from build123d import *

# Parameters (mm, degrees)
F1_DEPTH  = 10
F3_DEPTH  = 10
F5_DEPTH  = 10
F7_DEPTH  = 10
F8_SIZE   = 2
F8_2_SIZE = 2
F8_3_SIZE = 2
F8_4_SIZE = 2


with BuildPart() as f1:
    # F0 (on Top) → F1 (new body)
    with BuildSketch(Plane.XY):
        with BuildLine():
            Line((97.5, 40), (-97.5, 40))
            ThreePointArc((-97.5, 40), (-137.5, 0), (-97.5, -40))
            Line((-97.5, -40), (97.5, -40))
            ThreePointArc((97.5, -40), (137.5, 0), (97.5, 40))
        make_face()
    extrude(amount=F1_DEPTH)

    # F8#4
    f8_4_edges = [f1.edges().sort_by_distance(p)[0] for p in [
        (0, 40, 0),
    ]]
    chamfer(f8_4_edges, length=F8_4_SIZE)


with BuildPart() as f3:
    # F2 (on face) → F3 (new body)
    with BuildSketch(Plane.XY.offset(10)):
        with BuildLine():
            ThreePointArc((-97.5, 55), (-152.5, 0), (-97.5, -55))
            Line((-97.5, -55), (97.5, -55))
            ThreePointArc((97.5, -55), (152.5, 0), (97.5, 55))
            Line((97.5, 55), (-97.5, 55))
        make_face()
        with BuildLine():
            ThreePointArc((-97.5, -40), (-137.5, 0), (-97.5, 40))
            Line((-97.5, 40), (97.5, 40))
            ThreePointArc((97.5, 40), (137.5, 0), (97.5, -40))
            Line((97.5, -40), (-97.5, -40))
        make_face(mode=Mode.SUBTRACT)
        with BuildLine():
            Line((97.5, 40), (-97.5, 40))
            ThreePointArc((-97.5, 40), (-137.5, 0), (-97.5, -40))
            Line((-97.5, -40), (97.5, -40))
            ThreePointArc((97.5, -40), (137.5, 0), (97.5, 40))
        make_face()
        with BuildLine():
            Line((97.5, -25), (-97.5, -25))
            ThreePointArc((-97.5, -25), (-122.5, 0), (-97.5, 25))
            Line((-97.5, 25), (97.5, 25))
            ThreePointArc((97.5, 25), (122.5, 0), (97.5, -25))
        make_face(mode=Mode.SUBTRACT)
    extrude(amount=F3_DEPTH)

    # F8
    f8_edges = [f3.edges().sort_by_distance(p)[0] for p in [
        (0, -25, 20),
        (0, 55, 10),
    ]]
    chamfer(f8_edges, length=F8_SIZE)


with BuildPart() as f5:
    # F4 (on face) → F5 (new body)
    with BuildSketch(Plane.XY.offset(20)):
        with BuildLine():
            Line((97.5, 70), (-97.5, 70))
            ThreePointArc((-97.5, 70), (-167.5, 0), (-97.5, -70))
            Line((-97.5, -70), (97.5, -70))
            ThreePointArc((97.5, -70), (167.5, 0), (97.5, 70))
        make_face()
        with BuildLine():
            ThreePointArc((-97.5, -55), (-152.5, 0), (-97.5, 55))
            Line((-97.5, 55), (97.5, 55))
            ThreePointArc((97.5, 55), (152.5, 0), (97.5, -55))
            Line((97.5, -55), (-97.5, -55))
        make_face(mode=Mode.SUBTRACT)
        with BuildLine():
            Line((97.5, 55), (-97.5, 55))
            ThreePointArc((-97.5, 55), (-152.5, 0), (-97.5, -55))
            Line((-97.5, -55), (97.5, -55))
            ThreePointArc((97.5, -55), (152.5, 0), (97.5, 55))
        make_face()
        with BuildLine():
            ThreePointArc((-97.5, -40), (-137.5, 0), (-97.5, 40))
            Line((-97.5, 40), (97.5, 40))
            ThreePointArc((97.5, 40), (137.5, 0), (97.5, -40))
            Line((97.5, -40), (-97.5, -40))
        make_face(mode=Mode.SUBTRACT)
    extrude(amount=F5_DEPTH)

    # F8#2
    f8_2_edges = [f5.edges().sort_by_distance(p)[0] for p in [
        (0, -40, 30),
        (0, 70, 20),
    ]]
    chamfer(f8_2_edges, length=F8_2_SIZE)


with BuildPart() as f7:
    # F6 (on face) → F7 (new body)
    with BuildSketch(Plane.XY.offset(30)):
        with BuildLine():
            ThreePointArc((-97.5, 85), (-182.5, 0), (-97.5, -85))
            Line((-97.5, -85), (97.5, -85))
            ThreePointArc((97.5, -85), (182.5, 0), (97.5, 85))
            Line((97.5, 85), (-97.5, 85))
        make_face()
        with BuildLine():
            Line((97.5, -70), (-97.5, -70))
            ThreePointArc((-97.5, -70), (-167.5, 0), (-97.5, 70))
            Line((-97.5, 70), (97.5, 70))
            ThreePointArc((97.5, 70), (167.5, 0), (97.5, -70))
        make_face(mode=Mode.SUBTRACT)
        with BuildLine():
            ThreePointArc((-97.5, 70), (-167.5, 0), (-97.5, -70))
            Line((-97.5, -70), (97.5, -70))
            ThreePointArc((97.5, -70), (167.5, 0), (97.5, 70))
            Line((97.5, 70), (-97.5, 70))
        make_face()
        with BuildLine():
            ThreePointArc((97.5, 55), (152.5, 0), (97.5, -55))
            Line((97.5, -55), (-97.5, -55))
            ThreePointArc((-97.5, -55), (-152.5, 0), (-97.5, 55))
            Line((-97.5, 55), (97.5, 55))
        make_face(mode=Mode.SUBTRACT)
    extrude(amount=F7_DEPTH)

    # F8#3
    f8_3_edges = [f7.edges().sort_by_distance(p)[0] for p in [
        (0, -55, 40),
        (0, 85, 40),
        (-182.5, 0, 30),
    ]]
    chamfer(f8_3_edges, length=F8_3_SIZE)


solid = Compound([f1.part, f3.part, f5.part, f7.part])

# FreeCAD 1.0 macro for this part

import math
import FreeCAD as App
import Part
import Sketcher

V = App.Vector
Q = App.Units.Quantity


def edges_at(feature, points):
    """Names of the edges that pass closest to the given points."""
    edges = feature.Shape.Edges
    near = lambda p: min(range(len(edges)), key=lambda i: edges[i].distToShape(Part.Vertex(*p))[0])
    return sorted({f"Edge{near(p) + 1}" for p in points})

doc = App.newDocument("Part")
params = doc.addObject("Spreadsheet::Sheet", "Params")
for row, (alias, value) in enumerate([
    ("sketch1_radius", "40 mm"),
    ("sketch1_width", "195 mm"),
    ("pad1_length", "10 mm"),
    ("chamfer_size", "2 mm"),
    ("sketch2_radius", "55 mm"),
    ("sketch2_radius2", "25 mm"),
    ("sketch2_width", "195 mm"),
    ("pad2_length", "10 mm"),
    ("chamfer2_size", "2 mm"),
    ("sketch3_radius", "70 mm"),
    ("sketch3_radius2", "40 mm"),
    ("sketch3_width", "195 mm"),
    ("pad3_length", "10 mm"),
    ("chamfer3_size", "2 mm"),
    ("sketch4_radius", "85 mm"),
    ("sketch4_radius2", "55 mm"),
    ("sketch4_width", "195 mm"),
    ("pad4_length", "10 mm"),
    ("chamfer4_size", "2 mm"),
], start=1):
    params.set(f"A{row}", alias)
    params.set(f"B{row}", "=" + value)
    params.setAlias(f"B{row}", alias)

body = doc.addObject("PartDesign::Body", "Body")

# Sketch on XY plane
sketch1 = body.newObject("Sketcher::SketchObject", "Sketch")
sketch1.AttachmentSupport = (doc.getObject("XY_Plane"), [""])
sketch1.MapMode = "FlatFace"
sketch1.addGeometry([
    Part.LineSegment(V(98, 40, 0), V(-98, 40, 0)),
    Part.ArcOfCircle(Part.Circle(V(-98, 0, 0), V(0, 0, 1), 40), math.radians(90), math.radians(270)),
    Part.LineSegment(V(-98, -40, 0), V(98, -40, 0)),
    Part.ArcOfCircle(Part.Circle(V(98, 0, 0), V(0, 0, 1), 40), math.radians(-90), math.radians(90)),
], False)
sketch1.addConstraint([
    Sketcher.Constraint("Tangent", 0, 2, 1, 1),
    Sketcher.Constraint("Tangent", 1, 2, 2, 1),
    Sketcher.Constraint("Tangent", 2, 2, 3, 1),
    Sketcher.Constraint("Tangent", 3, 2, 0, 1),
    Sketcher.Constraint("Horizontal", 0),
    Sketcher.Constraint("Horizontal", 2),
    Sketcher.Constraint("Symmetric", 1, 3, 3, 3, -1, 1),
    Sketcher.Constraint("Radius", 1, Q("40 mm")),
    Sketcher.Constraint("DistanceX", 0, 2, 0, 1, Q("195 mm")),
])
sketch1.setExpression("Constraints[7]", "Params.sketch1_radius")
sketch1.setExpression("Constraints[8]", "Params.sketch1_width")
pad1 = body.newObject("PartDesign::Pad", "Pad")
pad1.Profile = sketch1
pad1.setExpression("Length", "Params.pad1_length")
doc.recompute()

chamfer = body.newObject("PartDesign::Chamfer", "Chamfer")
chamfer.Base = (pad1, edges_at(pad1, [(0, 40, 0)]))
chamfer.setExpression("Size", "Params.chamfer_size")
body2 = doc.addObject("PartDesign::Body", "Body001")

# Sketch on XY plane
sketch2 = body2.newObject("Sketcher::SketchObject", "Sketch001")
sketch2.AttachmentSupport = (doc.getObject("XY_Plane001"), [""])
sketch2.MapMode = "FlatFace"
sketch2.AttachmentOffset = App.Placement(V(0, 0, 10), App.Rotation())
sketch2.addGeometry([
    Part.ArcOfCircle(Part.Circle(V(-98, 0, 0), V(0, 0, 1), 55), math.radians(90), math.radians(270)),  # 0
    Part.LineSegment(V(-98, -55, 0), V(98, -55, 0)),  # 1
    Part.ArcOfCircle(Part.Circle(V(98, 0, 0), V(0, 0, 1), 55), math.radians(-90), math.radians(90)),  # 2
    Part.LineSegment(V(98, 55, 0), V(-98, 55, 0)),  # 3
    Part.ArcOfCircle(Part.Circle(V(98, 0, 0), V(0, 0, 1), 25), math.radians(-90), math.radians(90)),  # 4
    Part.LineSegment(V(98, -25, 0), V(-98, -25, 0)),  # 5
    Part.ArcOfCircle(Part.Circle(V(-98, 0, 0), V(0, 0, 1), 25), math.radians(90), math.radians(270)),  # 6
    Part.LineSegment(V(-98, 25, 0), V(98, 25, 0)),  # 7
], False)
sketch2.addConstraint([
    Sketcher.Constraint("Tangent", 0, 2, 1, 1),
    Sketcher.Constraint("Tangent", 1, 2, 2, 1),
    Sketcher.Constraint("Tangent", 2, 2, 3, 1),
    Sketcher.Constraint("Tangent", 3, 2, 0, 1),
    Sketcher.Constraint("Tangent", 4, 1, 5, 1),
    Sketcher.Constraint("Tangent", 5, 2, 6, 2),
    Sketcher.Constraint("Tangent", 6, 1, 7, 1),
    Sketcher.Constraint("Tangent", 7, 2, 4, 2),
    Sketcher.Constraint("Horizontal", 1),
    Sketcher.Constraint("Horizontal", 3),
    Sketcher.Constraint("Horizontal", 5),
    Sketcher.Constraint("Horizontal", 7),
    Sketcher.Constraint("Coincident", 4, 3, 2, 3),
    Sketcher.Constraint("Symmetric", 0, 3, 2, 3, -1, 1),
    Sketcher.Constraint("Vertical", 6, 3, 0, 2),
    Sketcher.Constraint("Radius", 0, Q("55 mm")),
    Sketcher.Constraint("Radius", 4, Q("25 mm")),
    Sketcher.Constraint("DistanceX", 1, 1, 1, 2, Q("195 mm")),
])
sketch2.setExpression("Constraints[15]", "Params.sketch2_radius")
sketch2.setExpression("Constraints[16]", "Params.sketch2_radius2")
sketch2.setExpression("Constraints[17]", "Params.sketch2_width")
pad2 = body2.newObject("PartDesign::Pad", "Pad001")
pad2.Profile = sketch2
pad2.setExpression("Length", "Params.pad2_length")
doc.recompute()

chamfer2 = body2.newObject("PartDesign::Chamfer", "Chamfer001")
chamfer2.Base = (pad2, edges_at(pad2, [(0, -25, 20), (0, 55, 10)]))
chamfer2.setExpression("Size", "Params.chamfer2_size")
body3 = doc.addObject("PartDesign::Body", "Body002")

# Sketch on XY plane
sketch3 = body3.newObject("Sketcher::SketchObject", "Sketch002")
sketch3.AttachmentSupport = (doc.getObject("XY_Plane002"), [""])
sketch3.MapMode = "FlatFace"
sketch3.AttachmentOffset = App.Placement(V(0, 0, 20), App.Rotation())
sketch3.addGeometry([
    Part.LineSegment(V(98, 70, 0), V(-98, 70, 0)),  # 0
    Part.ArcOfCircle(Part.Circle(V(-98, 0, 0), V(0, 0, 1), 70), math.radians(90), math.radians(270)),  # 1
    Part.LineSegment(V(-98, -70, 0), V(98, -70, 0)),  # 2
    Part.ArcOfCircle(Part.Circle(V(98, 0, 0), V(0, 0, 1), 70), math.radians(-90), math.radians(90)),  # 3
    Part.LineSegment(V(98, -40, 0), V(-98, -40, 0)),  # 4
    Part.ArcOfCircle(Part.Circle(V(-98, 0, 0), V(0, 0, 1), 40), math.radians(90), math.radians(270)),  # 5
    Part.LineSegment(V(-98, 40, 0), V(98, 40, 0)),  # 6
    Part.ArcOfCircle(Part.Circle(V(98, 0, 0), V(0, 0, 1), 40), math.radians(-90), math.radians(90)),  # 7
], False)
sketch3.addConstraint([
    Sketcher.Constraint("Tangent", 0, 2, 1, 1),
    Sketcher.Constraint("Tangent", 1, 2, 2, 1),
    Sketcher.Constraint("Tangent", 2, 2, 3, 1),
    Sketcher.Constraint("Tangent", 3, 2, 0, 1),
    Sketcher.Constraint("Tangent", 4, 2, 5, 2),
    Sketcher.Constraint("Tangent", 5, 1, 6, 1),
    Sketcher.Constraint("Tangent", 6, 2, 7, 2),
    Sketcher.Constraint("Tangent", 7, 1, 4, 1),
    Sketcher.Constraint("Horizontal", 0),
    Sketcher.Constraint("Horizontal", 2),
    Sketcher.Constraint("Horizontal", 4),
    Sketcher.Constraint("Horizontal", 6),
    Sketcher.Constraint("Coincident", 5, 3, 1, 3),
    Sketcher.Constraint("Symmetric", 1, 3, 3, 3, -1, 1),
    Sketcher.Constraint("Vertical", 7, 3, 2, 2),
    Sketcher.Constraint("Radius", 1, Q("70 mm")),
    Sketcher.Constraint("Radius", 5, Q("40 mm")),
    Sketcher.Constraint("DistanceX", 0, 2, 0, 1, Q("195 mm")),
])
sketch3.setExpression("Constraints[15]", "Params.sketch3_radius")
sketch3.setExpression("Constraints[16]", "Params.sketch3_radius2")
sketch3.setExpression("Constraints[17]", "Params.sketch3_width")
pad3 = body3.newObject("PartDesign::Pad", "Pad002")
pad3.Profile = sketch3
pad3.setExpression("Length", "Params.pad3_length")
doc.recompute()

chamfer3 = body3.newObject("PartDesign::Chamfer", "Chamfer002")
chamfer3.Base = (pad3, edges_at(pad3, [(0, -40, 30), (0, 70, 20)]))
chamfer3.setExpression("Size", "Params.chamfer3_size")
body4 = doc.addObject("PartDesign::Body", "Body003")

# Sketch on XY plane
sketch4 = body4.newObject("Sketcher::SketchObject", "Sketch003")
sketch4.AttachmentSupport = (doc.getObject("XY_Plane003"), [""])
sketch4.MapMode = "FlatFace"
sketch4.AttachmentOffset = App.Placement(V(0, 0, 30), App.Rotation())
sketch4.addGeometry([
    Part.ArcOfCircle(Part.Circle(V(-98, 0, 0), V(0, 0, 1), 85), math.radians(90), math.radians(270)),  # 0
    Part.LineSegment(V(-98, -85, 0), V(98, -85, 0)),  # 1
    Part.ArcOfCircle(Part.Circle(V(98, 0, 0), V(0, 0, 1), 85), math.radians(-90), math.radians(90)),  # 2
    Part.LineSegment(V(98, 85, 0), V(-98, 85, 0)),  # 3
    Part.LineSegment(V(-98, 55, 0), V(98, 55, 0)),  # 4
    Part.ArcOfCircle(Part.Circle(V(98, 0, 0), V(0, 0, 1), 55), math.radians(-90), math.radians(90)),  # 5
    Part.LineSegment(V(98, -55, 0), V(-98, -55, 0)),  # 6
    Part.ArcOfCircle(Part.Circle(V(-98, 0, 0), V(0, 0, 1), 55), math.radians(90), math.radians(270)),  # 7
], False)
sketch4.addConstraint([
    Sketcher.Constraint("Tangent", 0, 2, 1, 1),
    Sketcher.Constraint("Tangent", 1, 2, 2, 1),
    Sketcher.Constraint("Tangent", 2, 2, 3, 1),
    Sketcher.Constraint("Tangent", 3, 2, 0, 1),
    Sketcher.Constraint("Tangent", 4, 2, 5, 2),
    Sketcher.Constraint("Tangent", 5, 1, 6, 1),
    Sketcher.Constraint("Tangent", 6, 2, 7, 2),
    Sketcher.Constraint("Tangent", 7, 1, 4, 1),
    Sketcher.Constraint("Horizontal", 1),
    Sketcher.Constraint("Horizontal", 3),
    Sketcher.Constraint("Horizontal", 4),
    Sketcher.Constraint("Horizontal", 6),
    Sketcher.Constraint("Coincident", 5, 3, 2, 3),
    Sketcher.Constraint("Symmetric", 0, 3, 2, 3, -1, 1),
    Sketcher.Constraint("Vertical", 7, 3, 0, 2),
    Sketcher.Constraint("Radius", 0, Q("85 mm")),
    Sketcher.Constraint("Radius", 5, Q("55 mm")),
    Sketcher.Constraint("DistanceX", 1, 1, 1, 2, Q("195 mm")),
])
sketch4.setExpression("Constraints[15]", "Params.sketch4_radius")
sketch4.setExpression("Constraints[16]", "Params.sketch4_radius2")
sketch4.setExpression("Constraints[17]", "Params.sketch4_width")
pad4 = body4.newObject("PartDesign::Pad", "Pad003")
pad4.Profile = sketch4
pad4.setExpression("Length", "Params.pad4_length")
doc.recompute()

chamfer4 = body4.newObject("PartDesign::Chamfer", "Chamfer003")
chamfer4.Base = (pad4, edges_at(pad4, [(0, -55, 40), (0, 85, 40), (-182.5, 0, 30)]))
chamfer4.setExpression("Size", "Params.chamfer4_size")

doc.recompute()
